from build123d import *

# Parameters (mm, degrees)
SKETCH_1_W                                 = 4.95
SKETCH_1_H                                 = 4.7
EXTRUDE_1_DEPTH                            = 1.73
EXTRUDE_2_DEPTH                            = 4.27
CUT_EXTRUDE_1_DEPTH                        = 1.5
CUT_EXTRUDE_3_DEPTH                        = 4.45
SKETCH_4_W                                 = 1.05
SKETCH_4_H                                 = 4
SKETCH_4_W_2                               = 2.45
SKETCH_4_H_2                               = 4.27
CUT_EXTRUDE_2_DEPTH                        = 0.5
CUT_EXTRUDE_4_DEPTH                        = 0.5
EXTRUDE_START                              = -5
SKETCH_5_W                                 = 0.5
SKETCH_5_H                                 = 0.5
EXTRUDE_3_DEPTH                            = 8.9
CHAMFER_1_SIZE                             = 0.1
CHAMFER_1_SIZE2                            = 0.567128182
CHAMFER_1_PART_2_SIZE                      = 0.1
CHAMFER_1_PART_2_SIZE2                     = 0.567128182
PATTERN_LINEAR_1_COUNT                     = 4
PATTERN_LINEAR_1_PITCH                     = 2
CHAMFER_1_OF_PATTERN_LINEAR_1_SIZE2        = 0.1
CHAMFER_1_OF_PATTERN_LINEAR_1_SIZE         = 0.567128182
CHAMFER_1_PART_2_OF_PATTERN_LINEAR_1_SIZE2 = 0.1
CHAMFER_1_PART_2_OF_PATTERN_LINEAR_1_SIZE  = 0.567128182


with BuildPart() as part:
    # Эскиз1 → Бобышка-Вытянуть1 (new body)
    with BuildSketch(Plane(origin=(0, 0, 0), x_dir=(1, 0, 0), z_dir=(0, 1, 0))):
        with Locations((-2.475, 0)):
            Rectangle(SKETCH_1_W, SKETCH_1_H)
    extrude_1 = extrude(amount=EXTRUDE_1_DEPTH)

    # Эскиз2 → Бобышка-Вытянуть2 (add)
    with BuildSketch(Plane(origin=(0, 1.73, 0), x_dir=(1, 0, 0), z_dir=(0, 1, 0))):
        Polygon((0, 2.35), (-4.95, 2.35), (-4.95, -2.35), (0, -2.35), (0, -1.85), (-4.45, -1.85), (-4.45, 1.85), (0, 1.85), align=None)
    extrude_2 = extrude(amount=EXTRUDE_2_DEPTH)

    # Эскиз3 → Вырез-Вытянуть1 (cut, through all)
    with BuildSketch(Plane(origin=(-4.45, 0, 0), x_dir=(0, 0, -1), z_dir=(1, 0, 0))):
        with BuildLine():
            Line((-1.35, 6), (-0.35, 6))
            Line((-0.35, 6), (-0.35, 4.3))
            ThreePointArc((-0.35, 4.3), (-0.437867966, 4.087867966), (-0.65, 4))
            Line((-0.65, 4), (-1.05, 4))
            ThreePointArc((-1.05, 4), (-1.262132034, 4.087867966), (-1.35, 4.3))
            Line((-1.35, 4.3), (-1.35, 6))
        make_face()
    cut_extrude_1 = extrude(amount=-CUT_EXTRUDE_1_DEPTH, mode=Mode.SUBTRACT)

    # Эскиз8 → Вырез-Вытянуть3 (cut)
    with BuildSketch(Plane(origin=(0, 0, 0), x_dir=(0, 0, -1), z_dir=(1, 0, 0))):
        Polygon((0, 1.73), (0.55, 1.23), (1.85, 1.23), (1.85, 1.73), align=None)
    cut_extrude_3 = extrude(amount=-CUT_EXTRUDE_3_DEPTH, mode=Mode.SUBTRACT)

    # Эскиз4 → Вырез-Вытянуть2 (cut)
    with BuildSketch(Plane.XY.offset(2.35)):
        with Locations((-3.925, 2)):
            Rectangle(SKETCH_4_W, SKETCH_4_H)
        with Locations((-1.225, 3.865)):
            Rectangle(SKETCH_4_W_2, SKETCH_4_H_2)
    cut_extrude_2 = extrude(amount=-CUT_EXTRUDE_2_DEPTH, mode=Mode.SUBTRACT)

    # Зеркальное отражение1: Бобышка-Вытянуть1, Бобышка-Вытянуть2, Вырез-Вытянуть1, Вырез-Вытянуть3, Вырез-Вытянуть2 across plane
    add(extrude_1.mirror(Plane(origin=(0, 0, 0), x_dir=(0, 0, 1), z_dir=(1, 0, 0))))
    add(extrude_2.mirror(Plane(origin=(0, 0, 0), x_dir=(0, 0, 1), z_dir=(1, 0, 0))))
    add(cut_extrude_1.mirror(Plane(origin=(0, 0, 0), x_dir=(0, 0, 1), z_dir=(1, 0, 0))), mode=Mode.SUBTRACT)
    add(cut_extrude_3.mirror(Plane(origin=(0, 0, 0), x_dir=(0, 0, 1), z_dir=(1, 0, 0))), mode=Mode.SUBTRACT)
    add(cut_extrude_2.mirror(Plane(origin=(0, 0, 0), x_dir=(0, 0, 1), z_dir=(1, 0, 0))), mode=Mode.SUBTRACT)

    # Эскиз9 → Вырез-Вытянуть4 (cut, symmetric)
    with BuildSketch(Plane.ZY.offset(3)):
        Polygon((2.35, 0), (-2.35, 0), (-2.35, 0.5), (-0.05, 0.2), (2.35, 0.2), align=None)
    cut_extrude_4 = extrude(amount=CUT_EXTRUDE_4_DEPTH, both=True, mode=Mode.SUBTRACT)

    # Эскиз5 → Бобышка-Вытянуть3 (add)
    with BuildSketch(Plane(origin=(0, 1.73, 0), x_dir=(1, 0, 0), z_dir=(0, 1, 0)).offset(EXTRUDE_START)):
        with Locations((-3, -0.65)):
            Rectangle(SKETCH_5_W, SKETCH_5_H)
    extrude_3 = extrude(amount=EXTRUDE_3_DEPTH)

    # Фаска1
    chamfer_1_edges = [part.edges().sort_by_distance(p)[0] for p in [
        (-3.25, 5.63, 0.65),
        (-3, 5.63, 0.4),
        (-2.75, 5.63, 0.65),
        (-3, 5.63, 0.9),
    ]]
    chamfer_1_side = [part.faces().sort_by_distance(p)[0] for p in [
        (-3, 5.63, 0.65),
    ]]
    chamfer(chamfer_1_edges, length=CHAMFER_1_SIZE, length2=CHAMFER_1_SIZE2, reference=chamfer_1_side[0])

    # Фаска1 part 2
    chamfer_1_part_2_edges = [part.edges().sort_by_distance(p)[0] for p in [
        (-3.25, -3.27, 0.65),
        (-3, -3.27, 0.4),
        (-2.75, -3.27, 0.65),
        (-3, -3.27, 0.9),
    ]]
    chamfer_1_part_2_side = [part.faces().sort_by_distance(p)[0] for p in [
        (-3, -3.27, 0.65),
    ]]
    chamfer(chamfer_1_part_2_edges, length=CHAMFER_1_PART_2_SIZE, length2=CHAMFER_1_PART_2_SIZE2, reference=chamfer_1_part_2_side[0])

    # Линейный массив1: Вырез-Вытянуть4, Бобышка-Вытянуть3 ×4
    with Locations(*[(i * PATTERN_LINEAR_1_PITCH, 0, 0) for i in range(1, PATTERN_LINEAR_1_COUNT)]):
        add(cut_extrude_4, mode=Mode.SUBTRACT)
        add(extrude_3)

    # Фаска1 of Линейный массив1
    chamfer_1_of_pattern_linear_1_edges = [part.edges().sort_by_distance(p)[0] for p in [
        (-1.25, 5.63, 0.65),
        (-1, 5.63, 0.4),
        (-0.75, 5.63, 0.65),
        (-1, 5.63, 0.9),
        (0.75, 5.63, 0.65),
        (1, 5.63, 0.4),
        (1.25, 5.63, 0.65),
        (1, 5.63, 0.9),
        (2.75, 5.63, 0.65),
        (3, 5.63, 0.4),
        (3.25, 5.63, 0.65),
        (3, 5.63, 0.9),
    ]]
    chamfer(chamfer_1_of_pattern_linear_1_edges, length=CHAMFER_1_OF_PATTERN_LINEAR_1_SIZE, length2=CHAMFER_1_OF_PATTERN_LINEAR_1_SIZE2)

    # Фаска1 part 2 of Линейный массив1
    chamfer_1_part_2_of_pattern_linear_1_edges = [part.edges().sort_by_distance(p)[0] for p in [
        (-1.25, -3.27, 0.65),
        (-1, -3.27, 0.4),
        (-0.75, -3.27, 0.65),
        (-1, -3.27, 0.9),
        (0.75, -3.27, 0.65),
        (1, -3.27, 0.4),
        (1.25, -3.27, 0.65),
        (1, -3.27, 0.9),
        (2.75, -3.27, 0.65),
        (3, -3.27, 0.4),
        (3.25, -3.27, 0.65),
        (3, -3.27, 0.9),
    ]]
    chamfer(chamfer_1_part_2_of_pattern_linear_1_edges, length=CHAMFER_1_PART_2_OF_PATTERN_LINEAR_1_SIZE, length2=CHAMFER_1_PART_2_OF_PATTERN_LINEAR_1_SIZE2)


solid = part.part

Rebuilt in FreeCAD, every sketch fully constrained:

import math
import FreeCAD as App
import Part
import Sketcher

V = App.Vector


def edges_at(feature, points):
    """Names of the edges that pass closest to the given points."""
    edges = feature.Shape.Edges
    near = lambda p: min(range(len(edges)), key=lambda i: edges[i].distToShape(Part.Vertex(*p))[0])
    return sorted({f"Edge{near(p) + 1}" for p in points})

doc = App.newDocument("Part")
params = doc.addObject("Spreadsheet::Sheet", "Params")
for row, (alias, value) in enumerate([
    ("sketch1_height", "4.7 mm"),
    ("sketch1_width", "4.95 mm"),
    ("pad1_length", "1.73 mm"),
    ("sketch2_height", "4.7 mm"),
    ("sketch2_height2", "0.5 mm"),
    ("sketch2_width", "4.95 mm"),
    ("sketch2_width2", "4.45 mm"),
    ("pad2_length", "4.27 mm"),
    ("sketch3_radius", "0.3 mm"),
    ("sketch3_height", "1 mm"),
    ("sketch3_width", "1.7 mm"),
    ("sketch4_width", "0.5 mm"),
    ("sketch4_height", "1.3 mm"),
    ("sketch4_height2", "1.85 mm"),
    ("pocket2_length", "4.45 mm"),
    ("sketch5_height", "4 mm"),
    ("sketch5_width", "1.05 mm"),
    ("sketch5_width2", "2.45 mm"),
    ("sketch5_height2", "4.27 mm"),
    ("pocket3_length", "0.5 mm"),
    ("sketch6_width", "0.2 mm"),
    ("sketch6_width2", "0.5 mm"),
    ("sketch6_height", "4.7 mm"),
    ("sketch6_height2", "2.4 mm"),
    ("pocket4_length", "1 mm"),
    ("sketch7_width", "0.5 mm"),
    ("pad3_length", "8.9 mm"),
    ("chamfer_size", "0.1 mm"),
    ("chamfer_size2", "0.567128 mm"),
    ("chamfer2_size", "0.1 mm"),
    ("chamfer2_size2", "0.567128 mm"),
    ("linearpattern_pitch", "2 mm"),
    ("chamfer3_size", "0.567128 mm"),
    ("chamfer3_size2", "0.1 mm"),
    ("chamfer4_size", "0.567128 mm"),
    ("chamfer4_size2", "0.1 mm"),
], start=1):
    params.set(f"A{row}", alias)
    params.set(f"B{row}", "=" + value)
    params.setAlias(f"B{row}", alias)

body = doc.addObject("PartDesign::Body", "Body")

sketch1 = body.newObject("Sketcher::SketchObject", "Sketch")
sketch1.AttachmentSupport = (doc.getObject("XZ_Plane"), [""])
sketch1.MapMode = "FlatFace"
sketch1.addGeometry([
    Part.LineSegment(V(-5, -2.4, 0), V(-5, 2.4, 0)),
    Part.LineSegment(V(-5, 2.4, 0), V(0, 2.4, 0)),
    Part.LineSegment(V(0, 2.4, 0), V(0, -2.4, 0)),
    Part.LineSegment(V(0, -2.4, 0), V(-5, -2.4, 0)),
], False)
sketch1.addConstraint([
    Sketcher.Constraint("Coincident", 0, 2, 1, 1),
    Sketcher.Constraint("Coincident", 1, 2, 2, 1),
    Sketcher.Constraint("Coincident", 2, 2, 3, 1),
    Sketcher.Constraint("Coincident", 3, 2, 0, 1),
    Sketcher.Constraint("Vertical", 0),
    Sketcher.Constraint("Horizontal", 1),
    Sketcher.Constraint("Vertical", 2),
    Sketcher.Constraint("Horizontal", 3),
    Sketcher.Constraint("Symmetric", 1, 2, 2, 2, -1, 1),
    Sketcher.Constraint("DistanceY", 0, 1, 0, 2, 4.7),
    Sketcher.Constraint("DistanceX", 1, 1, 1, 2, 4.95),
])
sketch1.setExpression("Constraints[9]", "Params.sketch1_height")
sketch1.setExpression("Constraints[10]", "Params.sketch1_width")
pad1 = body.newObject("PartDesign::Pad", "Pad")
pad1.Profile = sketch1
pad1.setExpression("Length", "Params.pad1_length")
pad1.Reversed = True

sketch2 = body.newObject("Sketcher::SketchObject", "Sketch001")
sketch2.AttachmentSupport = (doc.getObject("XZ_Plane"), [""])
sketch2.MapMode = "FlatFace"
sketch2.AttachmentOffset = App.Placement(V(0, 0, -1.73), App.Rotation())
sketch2.addGeometry([
    Part.LineSegment(V(0, -2.4, 0), V(-5, -2.4, 0)),
    Part.LineSegment(V(-5, -2.4, 0), V(-5, 2.4, 0)),
    Part.LineSegment(V(-5, 2.4, 0), V(0, 2.4, 0)),
    Part.LineSegment(V(0, 2.4, 0), V(0, 1.9, 0)),
    Part.LineSegment(V(0, 1.9, 0), V(-4.5, 1.9, 0)),
    Part.LineSegment(V(-4.5, 1.9, 0), V(-4.5, -1.9, 0)),
    Part.LineSegment(V(-4.5, -1.9, 0), V(0, -1.9, 0)),
    Part.LineSegment(V(0, -1.9, 0), V(0, -2.4, 0)),
], False)
sketch2.addConstraint([
    Sketcher.Constraint("Coincident", 0, 2, 1, 1),
    Sketcher.Constraint("Coincident", 1, 2, 2, 1),
    Sketcher.Constraint("Coincident", 2, 2, 3, 1),
    Sketcher.Constraint("Coincident", 3, 2, 4, 1),
    Sketcher.Constraint("Coincident", 4, 2, 5, 1),
    Sketcher.Constraint("Coincident", 5, 2, 6, 1),
    Sketcher.Constraint("Coincident", 6, 2, 7, 1),
    Sketcher.Constraint("Coincident", 7, 2, 0, 1),
    Sketcher.Constraint("Horizontal", 0),
    Sketcher.Constraint("Vertical", 1),
    Sketcher.Constraint("Horizontal", 2),
    Sketcher.Constraint("Vertical", 3),
    Sketcher.Constraint("Horizontal", 4),
    Sketcher.Constraint("Vertical", 5),
    Sketcher.Constraint("Horizontal", 6),
    Sketcher.Constraint("Vertical", 7),
    Sketcher.Constraint("Symmetric", 3, 2, 6, 2, -1, 1),
    Sketcher.Constraint("Symmetric", 2, 2, 7, 2, -1),
    Sketcher.Constraint("DistanceY", 1, 1, 1, 2, 4.7),
    Sketcher.Constraint("DistanceY", 3, 2, 3, 1, 0.5),
    Sketcher.Constraint("DistanceX", 0, 2, 0, 1, 4.95),
    Sketcher.Constraint("DistanceX", 4, 2, 4, 1, 4.45),
])
sketch2.setExpression("Constraints[18]", "Params.sketch2_height")
sketch2.setExpression("Constraints[19]", "Params.sketch2_height2")
sketch2.setExpression("Constraints[20]", "Params.sketch2_width")
sketch2.setExpression("Constraints[21]", "Params.sketch2_width2")
pad2 = body.newObject("PartDesign::Pad", "Pad001")
pad2.Profile = sketch2
pad2.setExpression("Length", "Params.pad2_length")
pad2.Reversed = True

sketch3 = body.newObject("Sketcher::SketchObject", "Sketch002")
sketch3.AttachmentSupport = (doc.getObject("YZ_Plane"), [""])
sketch3.MapMode = "FlatFace"
sketch3.AttachmentOffset = App.Placement(V(0, 0, -4.45), App.Rotation())
sketch3.addGeometry([
    Part.LineSegment(V(6, 0.35, 0), V(6, 1.35, 0)),
    Part.LineSegment(V(6, 1.35, 0), V(4.3, 1.35, 0)),
    Part.ArcOfCircle(Part.Circle(V(4.3, 1.05, 0), V(0, 0, 1), 0.3), math.radians(90), math.radians(180)),
    Part.LineSegment(V(4, 1.05, 0), V(4, 0.65, 0)),
    Part.ArcOfCircle(Part.Circle(V(4.3, 0.65, 0), V(0, 0, 1), 0.3), math.radians(-180), math.radians(-90)),
    Part.LineSegment(V(4.3, 0.35, 0), V(6, 0.35, 0)),
], False)
sketch3.addConstraint([
    Sketcher.Constraint("Coincident", 0, 2, 1, 1),
    Sketcher.Constraint("Tangent", 1, 2, 2, 1),
    Sketcher.Constraint("Tangent", 2, 2, 3, 1),
    Sketcher.Constraint("Tangent", 3, 2, 4, 1),
    Sketcher.Constraint("Tangent", 4, 2, 5, 1),
    Sketcher.Constraint("Coincident", 5, 2, 0, 1),
    Sketcher.Constraint("Vertical", 0),
    Sketcher.Constraint("Horizontal", 1),
    Sketcher.Constraint("Vertical", 3),
    Sketcher.Constraint("Horizontal", 5),
    Sketcher.Constraint("Equal", 2, 4),
    Sketcher.Constraint("Radius", 2, 0.3),
    Sketcher.Constraint("DistanceY", 0, 1, 0, 2, 1.0),
    Sketcher.Constraint("DistanceX", 1, 2, 1, 1, 1.7),
    Sketcher.Constraint("DistanceX", -1, 1, 0, 2, 6.0),
    Sketcher.Constraint("DistanceY", -1, 1, 2, 3, 1.05),
])
sketch3.setExpression("Constraints[11]", "Params.sketch3_radius")
sketch3.setExpression("Constraints[12]", "Params.sketch3_height")
sketch3.setExpression("Constraints[13]", "Params.sketch3_width")
pocket1 = body.newObject("PartDesign::Pocket", "Pocket")
pocket1.Profile = sketch3
pocket1.Type = "ThroughAll"

sketch4 = body.newObject("Sketcher::SketchObject", "Sketch003")
sketch4.AttachmentSupport = (doc.getObject("YZ_Plane"), [""])
sketch4.MapMode = "FlatFace"
sketch4.addGeometry([
    Part.LineSegment(V(1.7, 0, 0), V(1.2, -0.6, 0)),
    Part.LineSegment(V(1.2, -0.6, 0), V(1.2, -1.9, 0)),
    Part.LineSegment(V(1.2, -1.9, 0), V(1.7, -1.9, 0)),
    Part.LineSegment(V(1.7, -1.9, 0), V(1.7, 0, 0)),
], False)
sketch4.addConstraint([
    Sketcher.Constraint("Coincident", 0, 2, 1, 1),
    Sketcher.Constraint("Coincident", 1, 2, 2, 1),
    Sketcher.Constraint("Coincident", 2, 2, 3, 1),
    Sketcher.Constraint("Coincident", 3, 2, 0, 1),
    Sketcher.Constraint("Vertical", 1),
    Sketcher.Constraint("Horizontal", 2),
    Sketcher.Constraint("Vertical", 3),
    Sketcher.Constraint("PointOnObject", 3, 2, -1),
    Sketcher.Constraint("DistanceX", 2, 1, 2, 2, 0.5),
    Sketcher.Constraint("DistanceY", 1, 2, 1, 1, 1.3),
    Sketcher.Constraint("DistanceY", 3, 1, 3, 2, 1.85),
    Sketcher.Constraint("DistanceX", -1, 1, 0, 2, 1.23),
])
sketch4.setExpression("Constraints[8]", "Params.sketch4_width")
sketch4.setExpression("Constraints[9]", "Params.sketch4_height")
sketch4.setExpression("Constraints[10]", "Params.sketch4_height2")
pocket2 = body.newObject("PartDesign::Pocket", "Pocket001")
pocket2.Profile = sketch4
pocket2.setExpression("Length", "Params.pocket2_length")

sketch5 = body.newObject("Sketcher::SketchObject", "Sketch004")
sketch5.AttachmentSupport = (doc.getObject("XY_Plane"), [""])
sketch5.MapMode = "FlatFace"
sketch5.AttachmentOffset = App.Placement(V(0, 0, 2.35), App.Rotation())
sketch5.addGeometry([
    Part.LineSegment(V(-4.5, 4, 0), V(-4.5, 0, 0)),
    Part.LineSegment(V(-4.5, 0, 0), V(-3.4, 0, 0)),
    Part.LineSegment(V(-3.4, 0, 0), V(-3.4, 4, 0)),
    Part.LineSegment(V(-3.4, 4, 0), V(-4.5, 4, 0)),
    Part.LineSegment(V(-2.5, 6, 0), V(-2.5, 1.7, 0)),
    Part.LineSegment(V(-2.5, 1.7, 0), V(0, 1.7, 0)),
    Part.LineSegment(V(0, 1.7, 0), V(0, 6, 0)),
    Part.LineSegment(V(0, 6, 0), V(-2.5, 6, 0)),
], False)
sketch5.addConstraint([
    Sketcher.Constraint("Coincident", 0, 2, 1, 1),
    Sketcher.Constraint("Coincident", 1, 2, 2, 1),
    Sketcher.Constraint("Coincident", 2, 2, 3, 1),
    Sketcher.Constraint("Coincident", 3, 2, 0, 1),
    Sketcher.Constraint("Coincident", 4, 2, 5, 1),
    Sketcher.Constraint("Coincident", 5, 2, 6, 1),
    Sketcher.Constraint("Coincident", 6, 2, 7, 1),
    Sketcher.Constraint("Coincident", 7, 2, 4, 1),
    Sketcher.Constraint("Vertical", 0),
    Sketcher.Constraint("Horizontal", 1),
    Sketcher.Constraint("Vertical", 2),
    Sketcher.Constraint("Horizontal", 3),
    Sketcher.Constraint("Vertical", 4),
    Sketcher.Constraint("Horizontal", 5),
    Sketcher.Constraint("Vertical", 6),
    Sketcher.Constraint("Horizontal", 7),
    Sketcher.Constraint("PointOnObject", 0, 2, -1),
    Sketcher.Constraint("PointOnObject", 5, 2, -2),
    Sketcher.Constraint("DistanceY", 0, 2, 0, 1, 4.0),
    Sketcher.Constraint("DistanceY", -1, 1, 6, 2, 6.0),
    Sketcher.Constraint("DistanceX", 0, 2, 4, 2, 2.0),
    Sketcher.Constraint("DistanceX", 1, 1, 1, 2, 1.05),
    Sketcher.Constraint("DistanceX", 5, 1, 5, 2, 2.45),
    Sketcher.Constraint("DistanceY", 4, 2, 4, 1, 4.27),
])
sketch5.setExpression("Constraints[18]", "Params.sketch5_height")
sketch5.setExpression("Constraints[21]", "Params.sketch5_width")
sketch5.setExpression("Constraints[22]", "Params.sketch5_width2")
sketch5.setExpression("Constraints[23]", "Params.sketch5_height2")
pocket3 = body.newObject("PartDesign::Pocket", "Pocket002")
pocket3.Profile = sketch5
pocket3.setExpression("Length", "Params.pocket3_length")
doc.recompute()

mirrored = body.newObject("PartDesign::Mirrored", "Mirrored")
mirrored.Originals = [pad1, pad2, pocket1, pocket2, pocket3]
mirrored.MirrorPlane = (doc.getObject("YZ_Plane"), [""])
body.Tip = mirrored

sketch6 = body.newObject("Sketcher::SketchObject", "Sketch005")
sketch6.AttachmentSupport = (doc.getObject("YZ_Plane"), [""])
sketch6.MapMode = "FlatFace"
sketch6.AttachmentOffset = App.Placement(V(0, 0, -3), App.Rotation())
sketch6.addGeometry([
    Part.LineSegment(V(0, -2.35, 0), V(0, 2.35, 0)),
    Part.LineSegment(V(0, 2.35, 0), V(0.2, 2.35, 0)),
    Part.LineSegment(V(0.2, 2.35, 0), V(0.2, -0.05, 0)),
    Part.LineSegment(V(0.2, -0.05, 0), V(0.5, -2.35, 0)),
    Part.LineSegment(V(0.5, -2.35, 0), V(0, -2.35, 0)),
], False)
sketch6.addConstraint([
    Sketcher.Constraint("Coincident", 0, 2, 1, 1),
    Sketcher.Constraint("Coincident", 1, 2, 2, 1),
    Sketcher.Constraint("Coincident", 2, 2, 3, 1),
    Sketcher.Constraint("Coincident", 3, 2, 4, 1),
    Sketcher.Constraint("Coincident", 4, 2, 0, 1),
    Sketcher.Constraint("Vertical", 0),
    Sketcher.Constraint("Horizontal", 1),
    Sketcher.Constraint("Vertical", 2),
    Sketcher.Constraint("Horizontal", 4),
    Sketcher.Constraint("Symmetric", 0, 2, 4, 2, -1, 1),
    Sketcher.Constraint("DistanceX", 1, 1, 1, 2, 0.2),
    Sketcher.Constraint("DistanceX", 4, 2, 4, 1, 0.5),
    Sketcher.Constraint("DistanceY", 0, 1, 0, 2, 4.7),
    Sketcher.Constraint("DistanceY", 2, 2, 2, 1, 2.4),
])
sketch6.setExpression("Constraints[10]", "Params.sketch6_width")
sketch6.setExpression("Constraints[11]", "Params.sketch6_width2")
sketch6.setExpression("Constraints[12]", "Params.sketch6_height")
sketch6.setExpression("Constraints[13]", "Params.sketch6_height2")
pocket4 = body.newObject("PartDesign::Pocket", "Pocket003")
pocket4.Profile = sketch6
pocket4.setExpression("Length", "Params.pocket4_length")
pocket4.Midplane = True

sketch7 = body.newObject("Sketcher::SketchObject", "Sketch006")
sketch7.AttachmentSupport = (doc.getObject("XZ_Plane"), [""])
sketch7.MapMode = "FlatFace"
sketch7.AttachmentOffset = App.Placement(V(0, 0, 3.27), App.Rotation())
sketch7.addGeometry([
    Part.LineSegment(V(-3.2, 0.4, 0), V(-3.2, 0.9, 0)),
    Part.LineSegment(V(-3.2, 0.9, 0), V(-2.8, 0.9, 0)),
    Part.LineSegment(V(-2.8, 0.9, 0), V(-2.8, 0.4, 0)),
    Part.LineSegment(V(-2.8, 0.4, 0), V(-3.2, 0.4, 0)),
], False)
sketch7.addConstraint([
    Sketcher.Constraint("Coincident", 0, 2, 1, 1),
    Sketcher.Constraint("Coincident", 1, 2, 2, 1),
    Sketcher.Constraint("Coincident", 2, 2, 3, 1),
    Sketcher.Constraint("Coincident", 3, 2, 0, 1),
    Sketcher.Constraint("Vertical", 0),
    Sketcher.Constraint("Horizontal", 1),
    Sketcher.Constraint("Vertical", 2),
    Sketcher.Constraint("Horizontal", 3),
    Sketcher.Constraint("Equal", 3, 0),
    Sketcher.Constraint("DistanceX", 1, 1, 1, 2, 0.5),
    Sketcher.Constraint("DistanceY", -1, 1, 0, 2, 0.9),
    Sketcher.Constraint("DistanceX", 0, 2, -1, 1, 3.25),
])
sketch7.setExpression("Constraints[9]", "Params.sketch7_width")
pad3 = body.newObject("PartDesign::Pad", "Pad002")
pad3.Profile = sketch7
pad3.setExpression("Length", "Params.pad3_length")
pad3.Reversed = True
doc.recompute()

chamfer = body.newObject("PartDesign::Chamfer", "Chamfer")
chamfer.Base = (pad3, edges_at(pad3, [
    (-3.25, 5.63, 0.65),
    (-3, 5.63, 0.4),
    (-2.75, 5.63, 0.65),
    (-3, 5.63, 0.9),
]))
chamfer.ChamferType = "Two distances"
chamfer.setExpression("Size", "Params.chamfer_size")
chamfer.setExpression("Size2", "Params.chamfer_size2")
chamfer.FlipDirection = True
doc.recompute()

chamfer2 = body.newObject("PartDesign::Chamfer", "Chamfer001")
chamfer2.Base = (chamfer, edges_at(chamfer, [
    (-3.25, -3.27, 0.65),
    (-3, -3.27, 0.4),
    (-2.75, -3.27, 0.65),
    (-3, -3.27, 0.9),
]))
chamfer2.ChamferType = "Two distances"
chamfer2.setExpression("Size", "Params.chamfer2_size")
chamfer2.setExpression("Size2", "Params.chamfer2_size2")
chamfer2.FlipDirection = True
doc.recompute()

linearpattern = body.newObject("PartDesign::LinearPattern", "LinearPattern")
linearpattern.Originals = [pocket4, pad3]
linearpattern.Direction = (doc.getObject("X_Axis"), [""])
linearpattern.Mode = "offset"
linearpattern.setExpression("Offset", "Params.linearpattern_pitch")
linearpattern.Occurrences = 4
body.Tip = linearpattern
doc.recompute()

chamfer3 = body.newObject("PartDesign::Chamfer", "Chamfer002")
chamfer3.Base = (linearpattern, edges_at(linearpattern, [
    (-1.25, 5.63, 0.65),
    (-1, 5.63, 0.4),
    (-0.75, 5.63, 0.65),
    (-1, 5.63, 0.9),
    (0.75, 5.63, 0.65),
    (1, 5.63, 0.4),
    (1.25, 5.63, 0.65),
    (1, 5.63, 0.9),
    (2.75, 5.63, 0.65),
    (3, 5.63, 0.4),
    (3.25, 5.63, 0.65),
    (3, 5.63, 0.9),
]))
chamfer3.ChamferType = "Two distances"
chamfer3.setExpression("Size", "Params.chamfer3_size")
chamfer3.setExpression("Size2", "Params.chamfer3_size2")
doc.recompute()

chamfer4 = body.newObject("PartDesign::Chamfer", "Chamfer003")
chamfer4.Base = (chamfer3, edges_at(chamfer3, [
    (-1.25, -3.27, 0.65),
    (-1, -3.27, 0.4),
    (-0.75, -3.27, 0.65),
    (-1, -3.27, 0.9),
    (0.75, -3.27, 0.65),
    (1, -3.27, 0.4),
    (1.25, -3.27, 0.65),
    (1, -3.27, 0.9),
    (2.75, -3.27, 0.65),
    (3, -3.27, 0.4),
    (3.25, -3.27, 0.65),
    (3, -3.27, 0.9),
]))
chamfer4.ChamferType = "Two distances"
chamfer4.setExpression("Size", "Params.chamfer4_size")
chamfer4.setExpression("Size2", "Params.chamfer4_size2")

doc.recompute()
